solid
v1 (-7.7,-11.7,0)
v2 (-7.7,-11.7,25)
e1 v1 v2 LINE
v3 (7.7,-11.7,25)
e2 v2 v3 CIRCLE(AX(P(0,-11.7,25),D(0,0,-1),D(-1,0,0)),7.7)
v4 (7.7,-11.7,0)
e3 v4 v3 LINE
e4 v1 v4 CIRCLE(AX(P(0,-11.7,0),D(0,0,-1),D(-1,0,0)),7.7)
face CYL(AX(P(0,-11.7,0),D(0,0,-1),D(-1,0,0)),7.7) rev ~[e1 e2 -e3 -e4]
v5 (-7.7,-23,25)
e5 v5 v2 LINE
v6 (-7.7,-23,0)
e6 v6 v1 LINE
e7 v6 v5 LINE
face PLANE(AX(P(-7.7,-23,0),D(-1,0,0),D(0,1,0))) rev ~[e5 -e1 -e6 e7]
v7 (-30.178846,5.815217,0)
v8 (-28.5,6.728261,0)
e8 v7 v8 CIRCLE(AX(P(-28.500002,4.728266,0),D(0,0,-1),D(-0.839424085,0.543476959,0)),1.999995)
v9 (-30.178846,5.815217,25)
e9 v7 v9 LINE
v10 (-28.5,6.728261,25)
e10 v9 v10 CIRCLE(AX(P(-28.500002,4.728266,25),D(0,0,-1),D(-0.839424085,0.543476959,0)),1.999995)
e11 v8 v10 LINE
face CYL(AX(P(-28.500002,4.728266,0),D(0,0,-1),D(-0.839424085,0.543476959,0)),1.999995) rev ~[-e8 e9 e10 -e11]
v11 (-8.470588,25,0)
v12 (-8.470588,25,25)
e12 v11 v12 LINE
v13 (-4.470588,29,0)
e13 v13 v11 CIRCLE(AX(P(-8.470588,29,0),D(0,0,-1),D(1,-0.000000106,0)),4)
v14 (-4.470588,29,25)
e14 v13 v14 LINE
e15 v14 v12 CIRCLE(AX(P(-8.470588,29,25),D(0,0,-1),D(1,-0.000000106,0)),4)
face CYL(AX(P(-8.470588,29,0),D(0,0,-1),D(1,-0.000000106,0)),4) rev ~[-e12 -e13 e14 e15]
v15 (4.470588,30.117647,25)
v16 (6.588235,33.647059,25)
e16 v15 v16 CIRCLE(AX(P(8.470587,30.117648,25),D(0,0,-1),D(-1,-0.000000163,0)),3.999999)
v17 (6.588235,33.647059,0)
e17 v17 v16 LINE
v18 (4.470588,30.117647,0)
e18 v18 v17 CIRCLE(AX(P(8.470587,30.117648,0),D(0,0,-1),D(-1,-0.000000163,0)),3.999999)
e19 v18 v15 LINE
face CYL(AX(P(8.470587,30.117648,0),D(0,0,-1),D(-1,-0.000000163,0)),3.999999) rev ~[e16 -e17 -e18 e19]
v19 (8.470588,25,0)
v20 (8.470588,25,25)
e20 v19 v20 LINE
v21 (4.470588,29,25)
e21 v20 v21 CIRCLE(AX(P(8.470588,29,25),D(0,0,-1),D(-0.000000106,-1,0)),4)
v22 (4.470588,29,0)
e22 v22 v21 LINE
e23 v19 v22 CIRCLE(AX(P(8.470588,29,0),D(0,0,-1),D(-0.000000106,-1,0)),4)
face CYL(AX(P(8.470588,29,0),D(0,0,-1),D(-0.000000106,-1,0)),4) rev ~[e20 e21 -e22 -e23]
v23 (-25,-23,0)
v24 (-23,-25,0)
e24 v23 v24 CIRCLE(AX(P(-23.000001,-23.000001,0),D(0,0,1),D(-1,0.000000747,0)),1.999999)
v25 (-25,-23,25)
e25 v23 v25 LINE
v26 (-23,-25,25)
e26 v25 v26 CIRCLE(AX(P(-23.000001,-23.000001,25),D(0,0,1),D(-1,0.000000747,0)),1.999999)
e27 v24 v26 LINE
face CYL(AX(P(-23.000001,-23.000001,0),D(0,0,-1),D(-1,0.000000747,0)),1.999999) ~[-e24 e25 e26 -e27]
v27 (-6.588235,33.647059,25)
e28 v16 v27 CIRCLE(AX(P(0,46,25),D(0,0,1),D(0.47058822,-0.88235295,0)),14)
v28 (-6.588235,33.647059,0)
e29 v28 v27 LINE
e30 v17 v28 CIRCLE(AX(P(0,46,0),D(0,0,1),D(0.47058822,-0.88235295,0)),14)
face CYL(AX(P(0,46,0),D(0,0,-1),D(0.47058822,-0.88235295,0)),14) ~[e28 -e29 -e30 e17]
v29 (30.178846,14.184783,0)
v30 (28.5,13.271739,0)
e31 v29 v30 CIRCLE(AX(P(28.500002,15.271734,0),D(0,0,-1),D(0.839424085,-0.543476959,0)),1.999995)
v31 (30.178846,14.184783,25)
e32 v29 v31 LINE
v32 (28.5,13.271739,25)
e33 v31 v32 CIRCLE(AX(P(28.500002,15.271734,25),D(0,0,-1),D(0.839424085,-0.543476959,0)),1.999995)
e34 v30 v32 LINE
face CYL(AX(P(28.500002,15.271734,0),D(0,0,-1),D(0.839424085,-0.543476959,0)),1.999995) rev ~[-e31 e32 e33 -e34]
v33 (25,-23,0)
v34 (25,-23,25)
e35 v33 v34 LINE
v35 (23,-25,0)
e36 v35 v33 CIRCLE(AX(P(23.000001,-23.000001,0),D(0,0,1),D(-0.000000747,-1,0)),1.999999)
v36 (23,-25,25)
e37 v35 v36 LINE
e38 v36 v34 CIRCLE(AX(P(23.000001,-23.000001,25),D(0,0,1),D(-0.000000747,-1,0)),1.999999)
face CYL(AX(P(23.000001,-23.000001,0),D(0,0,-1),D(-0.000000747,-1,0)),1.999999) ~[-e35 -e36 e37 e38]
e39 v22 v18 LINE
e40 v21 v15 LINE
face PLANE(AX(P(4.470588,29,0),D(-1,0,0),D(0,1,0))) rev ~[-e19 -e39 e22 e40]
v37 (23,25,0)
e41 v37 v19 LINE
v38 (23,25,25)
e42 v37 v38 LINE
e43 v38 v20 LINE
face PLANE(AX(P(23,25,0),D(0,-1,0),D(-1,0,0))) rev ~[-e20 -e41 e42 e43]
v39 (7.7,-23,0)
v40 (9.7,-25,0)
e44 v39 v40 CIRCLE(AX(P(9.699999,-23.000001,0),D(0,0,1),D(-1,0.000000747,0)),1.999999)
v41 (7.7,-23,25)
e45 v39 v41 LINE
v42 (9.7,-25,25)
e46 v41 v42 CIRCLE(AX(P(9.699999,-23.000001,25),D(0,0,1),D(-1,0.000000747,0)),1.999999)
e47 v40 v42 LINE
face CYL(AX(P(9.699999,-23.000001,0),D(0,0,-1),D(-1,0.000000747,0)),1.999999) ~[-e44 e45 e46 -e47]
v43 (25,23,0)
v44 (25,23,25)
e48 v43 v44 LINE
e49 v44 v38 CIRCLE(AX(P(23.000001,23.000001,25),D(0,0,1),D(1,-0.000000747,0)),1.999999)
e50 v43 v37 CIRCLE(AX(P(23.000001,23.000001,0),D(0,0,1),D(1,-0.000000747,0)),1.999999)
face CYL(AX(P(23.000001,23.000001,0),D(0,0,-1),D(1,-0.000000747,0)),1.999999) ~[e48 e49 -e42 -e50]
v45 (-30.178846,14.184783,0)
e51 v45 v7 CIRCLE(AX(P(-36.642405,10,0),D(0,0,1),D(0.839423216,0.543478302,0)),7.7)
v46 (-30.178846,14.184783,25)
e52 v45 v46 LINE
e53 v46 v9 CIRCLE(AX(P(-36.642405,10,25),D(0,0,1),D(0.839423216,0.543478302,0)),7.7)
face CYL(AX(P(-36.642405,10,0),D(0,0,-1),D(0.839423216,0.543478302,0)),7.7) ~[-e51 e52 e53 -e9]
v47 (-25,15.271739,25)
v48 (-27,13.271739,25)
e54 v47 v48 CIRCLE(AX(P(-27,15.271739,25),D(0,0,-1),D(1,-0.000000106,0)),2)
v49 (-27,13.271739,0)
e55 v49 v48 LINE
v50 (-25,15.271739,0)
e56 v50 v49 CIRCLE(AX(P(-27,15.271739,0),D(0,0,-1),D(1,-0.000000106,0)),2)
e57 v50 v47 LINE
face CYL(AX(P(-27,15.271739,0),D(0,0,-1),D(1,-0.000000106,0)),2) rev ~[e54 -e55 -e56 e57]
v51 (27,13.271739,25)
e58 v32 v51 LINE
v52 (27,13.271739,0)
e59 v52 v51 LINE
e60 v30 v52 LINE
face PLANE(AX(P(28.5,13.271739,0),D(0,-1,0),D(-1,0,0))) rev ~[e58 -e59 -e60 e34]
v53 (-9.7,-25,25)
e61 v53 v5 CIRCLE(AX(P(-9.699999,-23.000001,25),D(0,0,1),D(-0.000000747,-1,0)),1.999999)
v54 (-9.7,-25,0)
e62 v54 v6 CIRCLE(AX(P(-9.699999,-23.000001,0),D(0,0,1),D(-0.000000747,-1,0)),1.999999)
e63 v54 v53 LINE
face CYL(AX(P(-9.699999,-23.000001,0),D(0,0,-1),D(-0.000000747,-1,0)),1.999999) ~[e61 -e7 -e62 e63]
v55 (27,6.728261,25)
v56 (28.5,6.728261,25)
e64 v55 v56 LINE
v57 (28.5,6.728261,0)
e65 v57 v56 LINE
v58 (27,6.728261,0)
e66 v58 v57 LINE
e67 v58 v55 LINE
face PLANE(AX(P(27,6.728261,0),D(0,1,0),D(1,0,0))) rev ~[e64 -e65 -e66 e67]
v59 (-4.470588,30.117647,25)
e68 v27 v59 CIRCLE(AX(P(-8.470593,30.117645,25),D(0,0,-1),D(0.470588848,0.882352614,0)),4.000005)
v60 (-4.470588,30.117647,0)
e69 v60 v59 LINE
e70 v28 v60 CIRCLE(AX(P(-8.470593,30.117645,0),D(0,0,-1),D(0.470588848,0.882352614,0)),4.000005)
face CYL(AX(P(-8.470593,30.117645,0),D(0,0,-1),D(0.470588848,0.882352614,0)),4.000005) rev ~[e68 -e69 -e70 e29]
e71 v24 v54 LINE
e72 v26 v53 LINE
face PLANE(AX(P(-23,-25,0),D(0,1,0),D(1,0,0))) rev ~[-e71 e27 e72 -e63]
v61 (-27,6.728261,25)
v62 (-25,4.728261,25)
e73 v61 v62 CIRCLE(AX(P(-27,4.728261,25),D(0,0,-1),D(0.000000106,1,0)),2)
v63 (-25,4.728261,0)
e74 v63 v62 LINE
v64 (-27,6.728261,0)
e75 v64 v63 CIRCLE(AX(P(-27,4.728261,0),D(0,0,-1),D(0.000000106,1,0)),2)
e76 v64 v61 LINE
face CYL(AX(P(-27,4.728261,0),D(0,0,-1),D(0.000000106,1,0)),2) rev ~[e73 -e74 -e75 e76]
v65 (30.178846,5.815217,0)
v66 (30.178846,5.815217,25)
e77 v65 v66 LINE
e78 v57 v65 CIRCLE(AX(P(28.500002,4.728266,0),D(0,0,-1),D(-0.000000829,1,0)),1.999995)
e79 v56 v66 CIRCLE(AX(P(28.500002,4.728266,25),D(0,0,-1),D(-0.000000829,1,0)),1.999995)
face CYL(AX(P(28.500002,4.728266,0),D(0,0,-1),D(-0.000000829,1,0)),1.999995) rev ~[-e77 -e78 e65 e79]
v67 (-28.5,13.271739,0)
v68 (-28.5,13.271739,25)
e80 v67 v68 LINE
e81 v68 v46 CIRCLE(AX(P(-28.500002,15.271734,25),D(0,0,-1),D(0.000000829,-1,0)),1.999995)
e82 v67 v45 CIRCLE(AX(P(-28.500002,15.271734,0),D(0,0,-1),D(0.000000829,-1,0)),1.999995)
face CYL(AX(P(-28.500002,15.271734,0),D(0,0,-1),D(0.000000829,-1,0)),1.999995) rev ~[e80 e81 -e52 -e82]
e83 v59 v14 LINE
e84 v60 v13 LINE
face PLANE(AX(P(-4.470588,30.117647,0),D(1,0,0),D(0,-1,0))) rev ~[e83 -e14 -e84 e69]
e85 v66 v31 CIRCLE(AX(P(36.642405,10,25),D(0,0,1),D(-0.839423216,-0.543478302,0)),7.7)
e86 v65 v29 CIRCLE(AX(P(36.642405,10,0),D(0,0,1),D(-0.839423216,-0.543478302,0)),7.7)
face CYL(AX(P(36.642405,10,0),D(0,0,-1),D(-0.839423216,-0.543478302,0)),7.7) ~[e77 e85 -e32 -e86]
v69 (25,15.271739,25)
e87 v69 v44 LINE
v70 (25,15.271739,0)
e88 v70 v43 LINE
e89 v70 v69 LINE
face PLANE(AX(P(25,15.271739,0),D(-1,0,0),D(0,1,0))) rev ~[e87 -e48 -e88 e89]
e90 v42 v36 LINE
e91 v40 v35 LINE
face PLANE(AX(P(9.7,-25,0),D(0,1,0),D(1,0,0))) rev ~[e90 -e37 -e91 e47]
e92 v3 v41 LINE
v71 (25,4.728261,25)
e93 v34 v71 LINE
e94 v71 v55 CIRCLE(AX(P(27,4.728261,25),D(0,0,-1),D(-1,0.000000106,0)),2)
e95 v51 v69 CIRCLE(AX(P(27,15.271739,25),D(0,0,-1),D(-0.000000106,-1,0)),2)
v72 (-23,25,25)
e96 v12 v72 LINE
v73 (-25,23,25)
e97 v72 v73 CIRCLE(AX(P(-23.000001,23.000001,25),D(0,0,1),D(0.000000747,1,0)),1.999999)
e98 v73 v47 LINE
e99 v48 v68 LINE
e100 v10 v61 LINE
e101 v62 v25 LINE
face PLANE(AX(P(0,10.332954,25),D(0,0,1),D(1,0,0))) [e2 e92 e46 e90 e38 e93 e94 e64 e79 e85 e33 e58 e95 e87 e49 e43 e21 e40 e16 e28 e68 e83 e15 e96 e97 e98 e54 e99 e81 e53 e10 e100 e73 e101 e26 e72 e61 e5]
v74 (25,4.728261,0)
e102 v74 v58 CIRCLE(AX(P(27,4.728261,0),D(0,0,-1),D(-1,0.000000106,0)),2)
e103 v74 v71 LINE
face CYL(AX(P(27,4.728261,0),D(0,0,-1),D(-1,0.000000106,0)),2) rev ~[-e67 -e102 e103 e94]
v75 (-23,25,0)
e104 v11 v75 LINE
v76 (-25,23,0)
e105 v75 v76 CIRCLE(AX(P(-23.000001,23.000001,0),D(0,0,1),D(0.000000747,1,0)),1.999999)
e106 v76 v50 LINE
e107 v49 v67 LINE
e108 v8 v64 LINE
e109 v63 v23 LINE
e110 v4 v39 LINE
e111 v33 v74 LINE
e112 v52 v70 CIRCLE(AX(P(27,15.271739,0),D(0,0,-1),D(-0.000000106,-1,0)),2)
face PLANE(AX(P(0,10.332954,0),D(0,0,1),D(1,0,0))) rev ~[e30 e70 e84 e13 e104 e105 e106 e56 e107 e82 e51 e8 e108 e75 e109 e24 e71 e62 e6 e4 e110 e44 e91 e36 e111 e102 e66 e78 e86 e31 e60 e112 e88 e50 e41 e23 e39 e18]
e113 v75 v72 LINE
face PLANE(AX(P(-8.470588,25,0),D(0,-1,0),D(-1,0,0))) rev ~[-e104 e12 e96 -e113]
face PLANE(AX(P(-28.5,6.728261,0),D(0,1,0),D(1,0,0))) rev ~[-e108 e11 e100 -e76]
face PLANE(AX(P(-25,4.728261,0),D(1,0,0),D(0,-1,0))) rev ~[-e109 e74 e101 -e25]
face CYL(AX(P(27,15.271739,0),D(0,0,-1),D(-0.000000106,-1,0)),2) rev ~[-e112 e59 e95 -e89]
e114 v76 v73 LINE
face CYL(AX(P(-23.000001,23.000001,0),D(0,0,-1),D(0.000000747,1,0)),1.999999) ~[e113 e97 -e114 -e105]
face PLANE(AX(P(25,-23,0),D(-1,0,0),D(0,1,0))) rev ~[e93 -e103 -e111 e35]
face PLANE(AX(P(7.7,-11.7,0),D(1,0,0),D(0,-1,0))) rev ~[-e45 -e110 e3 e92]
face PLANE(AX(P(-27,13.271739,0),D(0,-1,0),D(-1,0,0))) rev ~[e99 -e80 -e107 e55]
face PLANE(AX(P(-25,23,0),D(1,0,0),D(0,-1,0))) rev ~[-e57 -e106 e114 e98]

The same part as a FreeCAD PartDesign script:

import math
import FreeCAD as App
import Part
import Sketcher

V = App.Vector
Q = App.Units.Quantity

doc = App.newDocument("Part")
params = doc.addObject("Spreadsheet::Sheet", "Params")
for row, (alias, value) in enumerate([
    ("sketch1_radius", "1.999999 mm"),
    ("sketch1_radius2", "4 mm"),
    ("sketch1_radius3", "14 mm"),
    ("sketch1_radius4", "7.7 mm"),
    ("sketch1_width", "13.3 mm"),
    ("pad1_length", "25 mm"),
], start=1):
    params.set(f"A{row}", alias)
    params.set(f"B{row}", "=" + value)
    params.setAlias(f"B{row}", alias)

body = doc.addObject("PartDesign::Body", "Body")

# Sketch on XY plane
sketch1 = body.newObject("Sketcher::SketchObject", "Sketch")
sketch1.AttachmentSupport = (doc.getObject("XY_Plane"), [""])
sketch1.MapMode = "FlatFace"
sketch1.addGeometry(Part.ArcOfCircle(Part.Circle(V(-23, -23, 0), V(0, 0, 1), 2), math.radians(180), math.radians(270)), False)
sketch1.addGeometry(Part.LineSegment(V(-23, -25, 0), V(-9.7, -25, 0)), False)
sketch1.addGeometry(Part.ArcOfCircle(Part.Circle(V(-9.7, -23, 0), V(0, 0, 1), 2), math.radians(-90), math.radians(0)), False)
sketch1.addGeometry(Part.LineSegment(V(-7.7, -23, 0), V(-7.7, -11.7, 0)), False)
sketch1.addGeometry(Part.ArcOfCircle(Part.Circle(V(0, -11.7, 0), V(0, 0, 1), 7.7), math.radians(0), math.radians(180)), False)
sketch1.addGeometry(Part.LineSegment(V(7.7, -11.7, 0), V(7.7, -23, 0)), False)
sketch1.addGeometry(Part.ArcOfCircle(Part.Circle(V(9.7, -23, 0), V(0, 0, 1), 2), math.radians(180), math.radians(270)), False)
sketch1.addGeometry(Part.LineSegment(V(9.7, -25, 0), V(23, -25, 0)), False)
sketch1.addGeometry(Part.ArcOfCircle(Part.Circle(V(23, -23, 0), V(0, 0, 1), 2), math.radians(-90), math.radians(0)), False)
sketch1.addGeometry(Part.LineSegment(V(25, -23, 0), V(25, 4.7, 0)), False)
sketch1.addGeometry(Part.ArcOfCircle(Part.Circle(V(27, 4.7, 0), V(0, 0, 1), 2), math.radians(90), math.radians(180)), False)
sketch1.addGeometry(Part.LineSegment(V(27, 6.7, 0), V(28.5, 6.7, 0)), False)
sketch1.addGeometry(Part.ArcOfCircle(Part.Circle(V(28.5, 4.7, 0), V(0, 0, 1), 2), math.radians(33), math.radians(90)), False)
sketch1.addGeometry(Part.ArcOfCircle(Part.Circle(V(36.6, 10, 0), V(0, 0, 1), 7.7), math.radians(-147), math.radians(147)), False)
sketch1.addGeometry(Part.ArcOfCircle(Part.Circle(V(28.5, 15.3, 0), V(0, 0, 1), 2), math.radians(-90), math.radians(-33)), False)
sketch1.addGeometry(Part.LineSegment(V(28.5, 13.3, 0), V(27, 13.3, 0)), False)
sketch1.addGeometry(Part.ArcOfCircle(Part.Circle(V(27, 15.3, 0), V(0, 0, 1), 2), math.radians(-180), math.radians(-90)), False)
sketch1.addGeometry(Part.LineSegment(V(25, 15.3, 0), V(25, 23, 0)), False)
sketch1.addGeometry(Part.ArcOfCircle(Part.Circle(V(23, 23, 0), V(0, 0, 1), 2), math.radians(0), math.radians(90)), False)
sketch1.addGeometry(Part.LineSegment(V(23, 25, 0), V(8.5, 25, 0)), False)
sketch1.addGeometry(Part.ArcOfCircle(Part.Circle(V(8.5, 29, 0), V(0, 0, 1), 4), math.radians(-180), math.radians(-90)), False)
sketch1.addGeometry(Part.LineSegment(V(4.5, 29, 0), V(4.5, 30.1, 0)), False)
sketch1.addGeometry(Part.ArcOfCircle(Part.Circle(V(8.5, 30.1, 0), V(0, 0, 1), 4), math.radians(118), math.radians(180)), False)
sketch1.addGeometry(Part.ArcOfCircle(Part.Circle(V(0, 46, 0), V(0, 0, 1), 14), math.radians(-62), math.radians(242)), False)
sketch1.addGeometry(Part.ArcOfCircle(Part.Circle(V(-8.5, 30.1, 0), V(0, 0, 1), 4), math.radians(0), math.radians(62)), False)
sketch1.addGeometry(Part.LineSegment(V(-4.5, 30.1, 0), V(-4.5, 29, 0)), False)
sketch1.addGeometry(Part.ArcOfCircle(Part.Circle(V(-8.5, 29, 0), V(0, 0, 1), 4), math.radians(-90), math.radians(0)), False)
sketch1.addGeometry(Part.LineSegment(V(-8.5, 25, 0), V(-23, 25, 0)), False)
sketch1.addGeometry(Part.ArcOfCircle(Part.Circle(V(-23, 23, 0), V(0, 0, 1), 2), math.radians(90), math.radians(180)), False)
sketch1.addGeometry(Part.LineSegment(V(-25, 23, 0), V(-25, 15.3, 0)), False)
sketch1.addGeometry(Part.ArcOfCircle(Part.Circle(V(-27, 15.3, 0), V(0, 0, 1), 2), math.radians(-90), math.radians(0)), False)
sketch1.addGeometry(Part.LineSegment(V(-27, 13.3, 0), V(-28.5, 13.3, 0)), False)
sketch1.addGeometry(Part.ArcOfCircle(Part.Circle(V(-28.5, 15.3, 0), V(0, 0, 1), 2), math.radians(-147), math.radians(-90)), False)
sketch1.addGeometry(Part.ArcOfCircle(Part.Circle(V(-36.6, 10, 0), V(0, 0, 1), 7.7), math.radians(33), math.radians(327)), False)
sketch1.addGeometry(Part.ArcOfCircle(Part.Circle(V(-28.5, 4.7, 0), V(0, 0, 1), 2), math.radians(90), math.radians(147)), False)
sketch1.addGeometry(Part.LineSegment(V(-28.5, 6.7, 0), V(-27, 6.7, 0)), False)
sketch1.addGeometry(Part.ArcOfCircle(Part.Circle(V(-27, 4.7, 0), V(0, 0, 1), 2), math.radians(0), math.radians(90)), False)
sketch1.addGeometry(Part.LineSegment(V(-25, 4.7, 0), V(-25, -23, 0)), False)
sketch1.addConstraint(Sketcher.Constraint("Tangent", 0, 2, 1, 1))
sketch1.addConstraint(Sketcher.Constraint("Tangent", 1, 2, 2, 1))
sketch1.addConstraint(Sketcher.Constraint("Tangent", 2, 2, 3, 1))
sketch1.addConstraint(Sketcher.Constraint("Tangent", 3, 2, 4, 2))
sketch1.addConstraint(Sketcher.Constraint("Tangent", 4, 1, 5, 1))
sketch1.addConstraint(Sketcher.Constraint("Tangent", 5, 2, 6, 1))
sketch1.addConstraint(Sketcher.Constraint("Tangent", 6, 2, 7, 1))
sketch1.addConstraint(Sketcher.Constraint("Tangent", 7, 2, 8, 1))
sketch1.addConstraint(Sketcher.Constraint("Tangent", 8, 2, 9, 1))
sketch1.addConstraint(Sketcher.Constraint("Tangent", 9, 2, 10, 2))
sketch1.addConstraint(Sketcher.Constraint("Tangent", 10, 1, 11, 1))
sketch1.addConstraint(Sketcher.Constraint("Tangent", 11, 2, 12, 2))
sketch1.addConstraint(Sketcher.Constraint("Tangent", 12, 1, 13, 1))
sketch1.addConstraint(Sketcher.Constraint("Tangent", 13, 2, 14, 2))
sketch1.addConstraint(Sketcher.Constraint("Tangent", 14, 1, 15, 1))
sketch1.addConstraint(Sketcher.Constraint("Tangent", 15, 2, 16, 2))
sketch1.addConstraint(Sketcher.Constraint("Tangent", 16, 1, 17, 1))
sketch1.addConstraint(Sketcher.Constraint("Tangent", 17, 2, 18, 1))
sketch1.addConstraint(Sketcher.Constraint("Tangent", 18, 2, 19, 1))
sketch1.addConstraint(Sketcher.Constraint("Tangent", 19, 2, 20, 2))
sketch1.addConstraint(Sketcher.Constraint("Tangent", 20, 1, 21, 1))
sketch1.addConstraint(Sketcher.Constraint("Tangent", 21, 2, 22, 2))
sketch1.addConstraint(Sketcher.Constraint("Tangent", 22, 1, 23, 1))
sketch1.addConstraint(Sketcher.Constraint("Tangent", 23, 2, 24, 2))
sketch1.addConstraint(Sketcher.Constraint("Tangent", 24, 1, 25, 1))
sketch1.addConstraint(Sketcher.Constraint("Tangent", 25, 2, 26, 2))
sketch1.addConstraint(Sketcher.Constraint("Tangent", 26, 1, 27, 1))
sketch1.addConstraint(Sketcher.Constraint("Tangent", 27, 2, 28, 1))
sketch1.addConstraint(Sketcher.Constraint("Tangent", 28, 2, 29, 1))
sketch1.addConstraint(Sketcher.Constraint("Tangent", 29, 2, 30, 2))
sketch1.addConstraint(Sketcher.Constraint("Tangent", 30, 1, 31, 1))
sketch1.addConstraint(Sketcher.Constraint("Tangent", 31, 2, 32, 2))
sketch1.addConstraint(Sketcher.Constraint("Tangent", 32, 1, 33, 1))
sketch1.addConstraint(Sketcher.Constraint("Tangent", 33, 2, 34, 2))
sketch1.addConstraint(Sketcher.Constraint("Tangent", 34, 1, 35, 1))
sketch1.addConstraint(Sketcher.Constraint("Tangent", 35, 2, 36, 2))
sketch1.addConstraint(Sketcher.Constraint("Tangent", 36, 1, 37, 1))
sketch1.addConstraint(Sketcher.Constraint("Tangent", 37, 2, 0, 1))
sketch1.addConstraint(Sketcher.Constraint("Horizontal", 1))
sketch1.addConstraint(Sketcher.Constraint("Vertical", 3))
sketch1.addConstraint(Sketcher.Constraint("Vertical", 5))
sketch1.addConstraint(Sketcher.Constraint("Horizontal", 7))
sketch1.addConstraint(Sketcher.Constraint("Vertical", 9))
sketch1.addConstraint(Sketcher.Constraint("Horizontal", 11))
sketch1.addConstraint(Sketcher.Constraint("Horizontal", 15))
sketch1.addConstraint(Sketcher.Constraint("Vertical", 17))
sketch1.addConstraint(Sketcher.Constraint("Horizontal", 19))
sketch1.addConstraint(Sketcher.Constraint("Vertical", 21))
sketch1.addConstraint(Sketcher.Constraint("Vertical", 25))
sketch1.addConstraint(Sketcher.Constraint("Horizontal", 27))
sketch1.addConstraint(Sketcher.Constraint("Vertical", 29))
sketch1.addConstraint(Sketcher.Constraint("Horizontal", 31))
sketch1.addConstraint(Sketcher.Constraint("Horizontal", 35))
sketch1.addConstraint(Sketcher.Constraint("Vertical", 37))
sketch1.addConstraint(Sketcher.Constraint("Equal", 0, 2))
sketch1.addConstraint(Sketcher.Constraint("Equal", 2, 6))
sketch1.addConstraint(Sketcher.Constraint("Equal", 6, 8))
sketch1.addConstraint(Sketcher.Constraint("Equal", 8, 10))
sketch1.addConstraint(Sketcher.Constraint("Equal", 4, 13))
sketch1.addConstraint(Sketcher.Constraint("Equal", 12, 14))
sketch1.addConstraint(Sketcher.Constraint("Equal", 10, 16))
sketch1.addConstraint(Sketcher.Constraint("Equal", 16, 18))
sketch1.addConstraint(Sketcher.Constraint("Equal", 20, 22))
sketch1.addConstraint(Sketcher.Constraint("Equal", 22, 26))
sketch1.addConstraint(Sketcher.Constraint("Equal", 18, 28))
sketch1.addConstraint(Sketcher.Constraint("Equal", 28, 30))
sketch1.addConstraint(Sketcher.Constraint("Equal", 14, 32))
sketch1.addConstraint(Sketcher.Constraint("Equal", 13, 33))
sketch1.addConstraint(Sketcher.Constraint("Equal", 32, 34))
sketch1.addConstraint(Sketcher.Constraint("Equal", 30, 36))
sketch1.addConstraint(Sketcher.Constraint("Symmetric", 0, 3, 18, 3, -1, 1))
sketch1.addConstraint(Sketcher.Constraint("Symmetric", 8, 3, 28, 3, -1, 1))
sketch1.addConstraint(Sketcher.Constraint("Symmetric", 2, 3, 6, 3, -2))
sketch1.addConstraint(Sketcher.Constraint("Symmetric", 22, 3, 24, 3, -2))
sketch1.addConstraint(Sketcher.Constraint("Symmetric", 16, 3, 30, 3, -2))
sketch1.addConstraint(Sketcher.Constraint("Symmetric", 13, 3, 33, 3, -2))
sketch1.addConstraint(Sketcher.Constraint("PointOnObject", 23, 3, -2))
sketch1.addConstraint(Sketcher.Constraint("Horizontal", 12, 3, 34, 3))
sketch1.addConstraint(Sketcher.Constraint("Vertical", 12, 3, 14, 3))
sketch1.addConstraint(Sketcher.Constraint("Radius", 0, Q("1.999999 mm")))
sketch1.addConstraint(Sketcher.Constraint("Radius", 20, Q("4 mm")))
sketch1.addConstraint(Sketcher.Constraint("Radius", 23, Q("14 mm")))
sketch1.addConstraint(Sketcher.Constraint("Radius", 4, Q("7.7 mm")))
sketch1.addConstraint(Sketcher.Constraint("DistanceX", 1, 1, 1, 2, Q("13.3 mm")))
sketch1.addConstraint(Sketcher.Constraint("DistanceX", 11, 1, 11, 2, Q("1.5 mm")))
sketch1.addConstraint(Sketcher.Constraint("DistanceY", 3, 1, 3, 2, Q("11.3 mm")))
sketch1.addConstraint(Sketcher.Constraint("DistanceY", 0, 3, -1, 1, Q("23.000001 mm")))
sketch1.addConstraint(Sketcher.Constraint("DistanceY", -1, 1, 13, 3, Q("10 mm")))
sketch1.addConstraint(Sketcher.Constraint("DistanceY", -1, 1, 23, 3, Q("46 mm")))
sketch1.addConstraint(Sketcher.Constraint("Radius", 12, Q("1.999995 mm")))
sketch1.addConstraint(Sketcher.Constraint("DistanceY", 9, 1, 9, 2, Q("27.728261 mm")))
sketch1.addConstraint(Sketcher.Constraint("DistanceX", 19, 2, 19, 1, Q("14.529412 mm")))
sketch1.setExpression("Constraints[79]", "Params.sketch1_radius")
sketch1.setExpression("Constraints[80]", "Params.sketch1_radius2")
sketch1.setExpression("Constraints[81]", "Params.sketch1_radius3")
sketch1.setExpression("Constraints[82]", "Params.sketch1_radius4")
sketch1.setExpression("Constraints[83]", "Params.sketch1_width")
pad1 = body.newObject("PartDesign::Pad", "Pad")
pad1.Profile = sketch1
pad1.setExpression("Length", "Params.pad1_length")

doc.recompute()
